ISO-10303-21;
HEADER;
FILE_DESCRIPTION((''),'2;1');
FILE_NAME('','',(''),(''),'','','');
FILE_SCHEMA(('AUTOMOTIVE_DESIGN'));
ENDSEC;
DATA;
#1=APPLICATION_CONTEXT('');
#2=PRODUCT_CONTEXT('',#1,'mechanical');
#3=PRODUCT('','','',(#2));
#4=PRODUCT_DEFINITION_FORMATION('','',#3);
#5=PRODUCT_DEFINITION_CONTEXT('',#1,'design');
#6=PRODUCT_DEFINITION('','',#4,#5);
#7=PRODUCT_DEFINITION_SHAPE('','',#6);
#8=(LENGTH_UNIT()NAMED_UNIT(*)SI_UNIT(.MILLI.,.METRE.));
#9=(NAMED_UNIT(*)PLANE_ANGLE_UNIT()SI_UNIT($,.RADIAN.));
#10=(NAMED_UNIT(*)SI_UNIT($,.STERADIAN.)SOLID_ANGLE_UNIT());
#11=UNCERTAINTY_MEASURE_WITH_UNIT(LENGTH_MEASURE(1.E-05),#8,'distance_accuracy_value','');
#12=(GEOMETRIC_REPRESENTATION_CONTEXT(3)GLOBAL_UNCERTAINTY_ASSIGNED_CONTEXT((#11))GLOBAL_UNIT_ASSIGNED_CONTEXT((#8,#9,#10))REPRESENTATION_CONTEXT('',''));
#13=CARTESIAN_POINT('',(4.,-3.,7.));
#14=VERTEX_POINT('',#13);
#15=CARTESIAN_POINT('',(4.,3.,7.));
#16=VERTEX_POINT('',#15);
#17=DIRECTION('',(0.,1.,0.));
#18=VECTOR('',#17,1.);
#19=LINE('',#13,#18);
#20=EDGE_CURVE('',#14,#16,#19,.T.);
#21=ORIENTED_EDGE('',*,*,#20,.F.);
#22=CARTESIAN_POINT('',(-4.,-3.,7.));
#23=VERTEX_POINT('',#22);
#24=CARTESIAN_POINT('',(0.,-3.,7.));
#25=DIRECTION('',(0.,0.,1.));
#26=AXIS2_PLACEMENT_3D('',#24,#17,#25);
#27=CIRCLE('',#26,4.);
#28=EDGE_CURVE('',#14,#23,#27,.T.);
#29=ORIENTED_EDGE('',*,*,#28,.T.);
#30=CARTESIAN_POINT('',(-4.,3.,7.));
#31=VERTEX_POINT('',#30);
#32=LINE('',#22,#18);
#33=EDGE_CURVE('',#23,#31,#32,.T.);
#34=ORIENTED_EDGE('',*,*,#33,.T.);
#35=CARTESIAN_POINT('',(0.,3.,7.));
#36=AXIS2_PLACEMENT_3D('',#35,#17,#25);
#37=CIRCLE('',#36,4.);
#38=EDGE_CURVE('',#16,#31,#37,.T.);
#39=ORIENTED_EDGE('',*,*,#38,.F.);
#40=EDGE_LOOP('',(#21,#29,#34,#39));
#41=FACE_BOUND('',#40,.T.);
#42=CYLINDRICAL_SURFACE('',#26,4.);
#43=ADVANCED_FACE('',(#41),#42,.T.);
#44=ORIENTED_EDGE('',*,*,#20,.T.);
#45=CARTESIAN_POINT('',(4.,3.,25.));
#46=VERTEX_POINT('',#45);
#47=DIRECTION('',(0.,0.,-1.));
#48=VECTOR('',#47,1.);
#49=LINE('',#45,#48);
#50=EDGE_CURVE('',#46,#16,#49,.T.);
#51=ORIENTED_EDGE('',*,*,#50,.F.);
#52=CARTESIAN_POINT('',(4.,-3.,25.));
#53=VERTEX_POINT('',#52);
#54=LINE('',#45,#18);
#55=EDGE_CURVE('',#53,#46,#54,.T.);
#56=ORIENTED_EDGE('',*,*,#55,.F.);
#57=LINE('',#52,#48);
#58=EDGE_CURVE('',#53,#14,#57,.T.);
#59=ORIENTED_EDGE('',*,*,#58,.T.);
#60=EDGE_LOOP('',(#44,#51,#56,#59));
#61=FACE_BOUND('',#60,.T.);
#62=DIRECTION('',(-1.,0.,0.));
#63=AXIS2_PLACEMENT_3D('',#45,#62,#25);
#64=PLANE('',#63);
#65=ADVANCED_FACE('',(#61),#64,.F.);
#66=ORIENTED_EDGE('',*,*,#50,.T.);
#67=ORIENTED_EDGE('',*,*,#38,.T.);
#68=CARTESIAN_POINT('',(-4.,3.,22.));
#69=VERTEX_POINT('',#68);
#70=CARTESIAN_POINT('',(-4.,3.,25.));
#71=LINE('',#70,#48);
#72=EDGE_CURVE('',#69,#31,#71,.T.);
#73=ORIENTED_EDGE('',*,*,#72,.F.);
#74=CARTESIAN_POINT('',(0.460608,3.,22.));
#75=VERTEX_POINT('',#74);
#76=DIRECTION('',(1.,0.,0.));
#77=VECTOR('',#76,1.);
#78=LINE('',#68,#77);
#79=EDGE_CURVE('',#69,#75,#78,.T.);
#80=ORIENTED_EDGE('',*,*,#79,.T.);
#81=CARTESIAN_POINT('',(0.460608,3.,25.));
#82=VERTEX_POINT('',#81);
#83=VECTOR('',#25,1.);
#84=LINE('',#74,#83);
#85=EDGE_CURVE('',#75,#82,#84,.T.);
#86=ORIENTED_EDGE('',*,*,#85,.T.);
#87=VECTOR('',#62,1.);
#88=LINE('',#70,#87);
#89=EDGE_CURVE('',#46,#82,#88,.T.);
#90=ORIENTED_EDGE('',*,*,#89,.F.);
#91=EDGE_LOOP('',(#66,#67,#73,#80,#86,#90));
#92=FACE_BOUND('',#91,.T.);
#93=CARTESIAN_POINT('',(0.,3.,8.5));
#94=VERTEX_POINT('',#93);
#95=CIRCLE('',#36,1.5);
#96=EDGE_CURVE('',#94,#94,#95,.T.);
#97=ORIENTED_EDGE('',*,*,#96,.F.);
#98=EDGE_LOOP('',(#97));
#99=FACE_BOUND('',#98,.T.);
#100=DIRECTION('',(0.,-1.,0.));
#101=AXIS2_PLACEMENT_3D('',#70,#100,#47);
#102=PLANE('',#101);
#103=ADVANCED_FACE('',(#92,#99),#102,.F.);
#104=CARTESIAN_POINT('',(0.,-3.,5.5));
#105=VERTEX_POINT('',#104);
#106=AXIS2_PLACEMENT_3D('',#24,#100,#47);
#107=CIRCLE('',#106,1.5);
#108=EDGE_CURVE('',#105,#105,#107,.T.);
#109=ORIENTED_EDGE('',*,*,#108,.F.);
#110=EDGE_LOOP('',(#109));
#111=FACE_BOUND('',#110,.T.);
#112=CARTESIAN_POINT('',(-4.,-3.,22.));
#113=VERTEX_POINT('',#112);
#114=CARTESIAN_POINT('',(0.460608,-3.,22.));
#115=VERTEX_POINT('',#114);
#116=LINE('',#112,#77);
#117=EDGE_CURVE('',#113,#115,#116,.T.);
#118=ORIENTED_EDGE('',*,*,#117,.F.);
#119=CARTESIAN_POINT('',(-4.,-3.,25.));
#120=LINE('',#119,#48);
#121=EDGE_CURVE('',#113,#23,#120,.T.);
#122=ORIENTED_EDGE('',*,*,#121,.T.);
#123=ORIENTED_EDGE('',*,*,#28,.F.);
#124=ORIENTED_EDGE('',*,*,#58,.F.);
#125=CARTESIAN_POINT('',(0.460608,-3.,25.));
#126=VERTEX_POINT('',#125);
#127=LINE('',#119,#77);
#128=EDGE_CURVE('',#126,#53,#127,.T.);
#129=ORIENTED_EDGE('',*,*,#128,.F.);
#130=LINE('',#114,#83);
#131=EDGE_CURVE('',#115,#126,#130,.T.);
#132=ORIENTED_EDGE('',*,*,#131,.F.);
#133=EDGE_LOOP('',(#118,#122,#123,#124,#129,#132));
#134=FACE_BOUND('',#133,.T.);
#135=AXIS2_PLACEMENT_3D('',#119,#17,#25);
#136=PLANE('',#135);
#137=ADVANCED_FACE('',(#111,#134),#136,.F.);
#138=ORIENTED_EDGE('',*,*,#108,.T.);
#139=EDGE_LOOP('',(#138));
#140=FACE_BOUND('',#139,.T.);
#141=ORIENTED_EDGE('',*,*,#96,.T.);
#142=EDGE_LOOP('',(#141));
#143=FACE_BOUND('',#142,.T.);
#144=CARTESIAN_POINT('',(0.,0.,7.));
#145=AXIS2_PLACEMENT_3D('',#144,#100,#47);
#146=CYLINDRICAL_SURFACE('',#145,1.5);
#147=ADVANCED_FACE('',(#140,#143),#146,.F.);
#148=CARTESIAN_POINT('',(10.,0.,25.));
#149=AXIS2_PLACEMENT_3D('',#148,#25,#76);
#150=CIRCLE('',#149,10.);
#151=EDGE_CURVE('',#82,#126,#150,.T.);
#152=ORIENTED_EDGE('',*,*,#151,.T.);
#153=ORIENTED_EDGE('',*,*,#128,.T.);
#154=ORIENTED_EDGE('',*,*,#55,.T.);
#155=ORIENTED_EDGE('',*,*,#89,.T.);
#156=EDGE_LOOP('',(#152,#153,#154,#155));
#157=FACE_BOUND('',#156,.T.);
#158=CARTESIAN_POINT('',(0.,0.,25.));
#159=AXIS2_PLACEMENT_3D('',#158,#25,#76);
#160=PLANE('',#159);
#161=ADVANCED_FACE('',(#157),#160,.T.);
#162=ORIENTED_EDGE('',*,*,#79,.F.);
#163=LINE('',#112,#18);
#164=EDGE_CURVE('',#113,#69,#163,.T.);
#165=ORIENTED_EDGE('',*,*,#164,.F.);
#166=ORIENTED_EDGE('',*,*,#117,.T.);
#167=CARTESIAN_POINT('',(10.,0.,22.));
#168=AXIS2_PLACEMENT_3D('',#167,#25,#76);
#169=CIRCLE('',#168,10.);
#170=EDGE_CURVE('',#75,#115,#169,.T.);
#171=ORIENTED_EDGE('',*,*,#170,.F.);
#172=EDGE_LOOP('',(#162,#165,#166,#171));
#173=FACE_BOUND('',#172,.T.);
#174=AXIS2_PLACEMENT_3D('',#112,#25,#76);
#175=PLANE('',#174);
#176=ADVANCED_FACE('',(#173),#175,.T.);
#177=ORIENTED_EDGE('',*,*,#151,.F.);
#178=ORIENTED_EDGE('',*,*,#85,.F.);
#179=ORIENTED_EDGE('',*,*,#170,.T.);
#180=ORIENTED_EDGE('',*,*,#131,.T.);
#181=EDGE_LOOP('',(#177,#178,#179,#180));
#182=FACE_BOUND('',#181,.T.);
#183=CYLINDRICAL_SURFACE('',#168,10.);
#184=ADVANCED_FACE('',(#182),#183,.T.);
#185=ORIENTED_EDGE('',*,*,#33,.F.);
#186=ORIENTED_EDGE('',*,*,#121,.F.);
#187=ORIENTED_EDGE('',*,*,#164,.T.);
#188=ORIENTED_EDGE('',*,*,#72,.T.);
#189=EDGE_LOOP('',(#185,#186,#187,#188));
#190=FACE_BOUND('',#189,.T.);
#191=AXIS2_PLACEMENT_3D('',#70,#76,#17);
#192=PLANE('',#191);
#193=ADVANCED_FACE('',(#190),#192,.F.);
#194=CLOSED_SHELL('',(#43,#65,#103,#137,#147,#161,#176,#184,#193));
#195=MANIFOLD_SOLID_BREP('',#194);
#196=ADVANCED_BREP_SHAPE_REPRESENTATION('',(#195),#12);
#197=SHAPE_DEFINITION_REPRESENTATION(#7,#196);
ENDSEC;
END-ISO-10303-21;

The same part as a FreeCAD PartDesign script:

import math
import FreeCAD as App
import Part
import Sketcher


def add_polygon(sketch, points):
    """Adds a closed chain of lines whose ends are joined by coincident constraints."""
    first, n = sketch.GeometryCount, len(points)
    for a, b in zip(points, points[1:] + points[:1]):
        sketch.addGeometry(Part.LineSegment(App.Vector(*a, 0), App.Vector(*b, 0)), False)
    for i in range(n):
        sketch.addConstraint(Sketcher.Constraint("Coincident", first + i, 2, first + (i + 1) % n, 1))

doc = App.newDocument("Part")
body = doc.addObject("PartDesign::Body", "Body")

sketch1 = body.newObject("Sketcher::SketchObject", "Sketch")
sketch1.AttachmentSupport = (doc.getObject("XY_Plane"), [""])
sketch1.MapMode = "FlatFace"
add_polygon(sketch1, [(-4, 3), (-4, -3), (4, -3), (4, 3)])
sketch1.addConstraint([
    Sketcher.Constraint("Vertical", 0),
    Sketcher.Constraint("Horizontal", 1),
    Sketcher.Constraint("Vertical", 2),
    Sketcher.Constraint("Horizontal", 3),
    Sketcher.Constraint("Symmetric", 0, 2, 2, 2, -1, 1),
    Sketcher.Constraint("DistanceX", 1, 1, 1, 2, 8.0),
    Sketcher.Constraint("DistanceY", 0, 2, 0, 1, 6.0),
])
pad1 = body.newObject("PartDesign::Pad", "Pad")
pad1.Profile = sketch1
pad1.Length = 25

sketch2 = body.newObject("Sketcher::SketchObject", "Sketch001")
sketch2.AttachmentSupport = (doc.getObject("XZ_Plane"), [""])
sketch2.MapMode = "FlatFace"
sketch2.AttachmentOffset = App.Placement(App.Vector(0, 0, -3), App.Rotation())
add_polygon(sketch2, [(-4, 22), (-4, 25), (0, 25), (0, 22)])
sketch2.addConstraint([
    Sketcher.Constraint("Vertical", 0),
    Sketcher.Constraint("Horizontal", 1),
    Sketcher.Constraint("Vertical", 2),
    Sketcher.Constraint("Horizontal", 3),
    Sketcher.Constraint("PointOnObject", 1, 2, -2),
    Sketcher.Constraint("DistanceX", 1, 1, 1, 2, 4.0),
    Sketcher.Constraint("DistanceY", 0, 1, 0, 2, 3.0),
    Sketcher.Constraint("DistanceY", -1, 1, 0, 2, 25.0),
])
pocket1 = body.newObject("PartDesign::Pocket", "Pocket")
pocket1.Profile = sketch2
pocket1.Type = "ThroughAll"
pocket1.Reversed = True

sketch3 = body.newObject("Sketcher::SketchObject", "Sketch002")
sketch3.AttachmentSupport = (doc.getObject("XZ_Plane"), [""])
sketch3.MapMode = "FlatFace"
sketch3.AttachmentOffset = App.Placement(App.Vector(0, 0, 3), App.Rotation())
sketch3.addGeometry(Part.Circle(App.Vector(0, 7, 0), App.Vector(0, 0, 1), 1.5), False)
sketch3.addConstraint([
    Sketcher.Constraint("PointOnObject", 0, 3, -2),
    Sketcher.Constraint("Diameter", 0, 3.0),
    Sketcher.Constraint("DistanceY", -1, 1, 0, 3, 7.0),
])
pocket2 = body.newObject("PartDesign::Pocket", "Pocket001")
pocket2.Profile = sketch3
pocket2.Length = 3

sketch4 = body.newObject("Sketcher::SketchObject", "Sketch003")
sketch4.AttachmentSupport = (doc.getObject("XZ_Plane"), [""])
sketch4.MapMode = "FlatFace"
sketch4.AttachmentOffset = App.Placement(App.Vector(0, 0, 3), App.Rotation())
sketch4.addGeometry([
    Part.Circle(App.Vector(0, 7, 0), App.Vector(0, 0, 1), 4),
    Part.Circle(App.Vector(0, 7, 0), App.Vector(0, 0, 1), 1.5),
], False)
sketch4.addConstraint([
    Sketcher.Constraint("Coincident", 1, 3, 0, 3),
    Sketcher.Constraint("PointOnObject", 0, 3, -2),
    Sketcher.Constraint("Diameter", 0, 8.0),
    Sketcher.Constraint("Diameter", 1, 3.0),
    Sketcher.Constraint("DistanceY", -1, 1, 0, 3, 7.0),
])
pad2 = body.newObject("PartDesign::Pad", "Pad001")
pad2.Profile = sketch4
pad2.Length = 3
pad2.Reversed = True

sketch5 = body.newObject("Sketcher::SketchObject", "Sketch004")
sketch5.AttachmentSupport = (doc.getObject("XZ_Plane"), [""])
sketch5.MapMode = "FlatFace"
sketch5.AttachmentOffset = App.Placement(App.Vector(0, 0, -3), App.Rotation())
sketch5.addGeometry([
    Part.LineSegment(App.Vector(4, 0, 0), App.Vector(-4, 0, 0)),
    Part.LineSegment(App.Vector(-4, 0, 0), App.Vector(-4, 7, 0)),
    Part.ArcOfCircle(Part.Circle(App.Vector(0, 7, 0), App.Vector(0, 0, 1), 4), math.radians(180), math.radians(360)),
    Part.LineSegment(App.Vector(4, 7, 0), App.Vector(4, 0, 0)),
    Part.Circle(App.Vector(0, 7, 0), App.Vector(0, 0, 1), 1.5),
], False)
sketch5.addConstraint([
    Sketcher.Constraint("Coincident", 0, 2, 1, 1),
    Sketcher.Constraint("Tangent", 1, 2, 2, 1),
    Sketcher.Constraint("Tangent", 2, 2, 3, 1),
    Sketcher.Constraint("Coincident", 3, 2, 0, 1),
    Sketcher.Constraint("Horizontal", 0),
    Sketcher.Constraint("Vertical", 1),
    Sketcher.Constraint("Vertical", 3),
    Sketcher.Constraint("Coincident", 4, 3, 2, 3),
    Sketcher.Constraint("Symmetric", 0, 2, 3, 2, -1, 1),
    Sketcher.Constraint("Diameter", 4, 3.0),
    Sketcher.Constraint("Radius", 2, 4.0),
    Sketcher.Constraint("DistanceY", 1, 1, 1, 2, 7.0),
])
pocket3 = body.newObject("PartDesign::Pocket", "Pocket002")
pocket3.Profile = sketch5
pocket3.Type = "ThroughAll"
pocket3.Reversed = True

sketch6 = body.newObject("Sketcher::SketchObject", "Sketch005")
sketch6.AttachmentSupport = (doc.getObject("XY_Plane"), [""])
sketch6.MapMode = "FlatFace"
sketch6.AttachmentOffset = App.Placement(App.Vector(0, 0, 25), App.Rotation())
sketch6.addGeometry([
    Part.LineSegment(App.Vector(0, 3, 0), App.Vector(0, 0, 0)),
    Part.ArcOfCircle(Part.Circle(App.Vector(10, 0, 0), App.Vector(0, 0, 1), 10), math.radians(162.542397), math.radians(180)),
    Part.LineSegment(App.Vector(0.460608, 3, 0), App.Vector(0, 3, 0)),
    Part.LineSegment(App.Vector(0, 0, 0), App.Vector(0, -3, 0)),
    Part.LineSegment(App.Vector(0, -3, 0), App.Vector(0.460608, -3, 0)),
    Part.ArcOfCircle(Part.Circle(App.Vector(10, 0, 0), App.Vector(0, 0, 1), 10), math.radians(-180), math.radians(-162.542397)),
], False)
sketch6.addConstraint([
    Sketcher.Constraint("Tangent", 0, 2, 1, 2),
    Sketcher.Constraint("Coincident", 1, 1, 2, 1),
    Sketcher.Constraint("Coincident", 2, 2, 0, 1),
    Sketcher.Constraint("Coincident", 3, 2, 4, 1),
    Sketcher.Constraint("Coincident", 4, 2, 5, 2),
    Sketcher.Constraint("Tangent", 5, 1, 3, 1),
    Sketcher.Constraint("Vertical", 0),
    Sketcher.Constraint("Horizontal", 2),
    Sketcher.Constraint("Vertical", 3),
    Sketcher.Constraint("Horizontal", 4),
    Sketcher.Constraint("Coincident", 0, 2, -1, 1),
    Sketcher.Constraint("Coincident", 5, 1, -1, 1),
    Sketcher.Constraint("Equal", 1, 5),
    Sketcher.Constraint("Vertical", 1, 1, 4, 2),
    Sketcher.Constraint("Radius", 1, 10.0),
    Sketcher.Constraint("DistanceY", 0, 2, 0, 1, 3.0),
])
pocket4 = body.newObject("PartDesign::Pocket", "Pocket003")
pocket4.Profile = sketch6
pocket4.Length = 3

doc.recompute()
